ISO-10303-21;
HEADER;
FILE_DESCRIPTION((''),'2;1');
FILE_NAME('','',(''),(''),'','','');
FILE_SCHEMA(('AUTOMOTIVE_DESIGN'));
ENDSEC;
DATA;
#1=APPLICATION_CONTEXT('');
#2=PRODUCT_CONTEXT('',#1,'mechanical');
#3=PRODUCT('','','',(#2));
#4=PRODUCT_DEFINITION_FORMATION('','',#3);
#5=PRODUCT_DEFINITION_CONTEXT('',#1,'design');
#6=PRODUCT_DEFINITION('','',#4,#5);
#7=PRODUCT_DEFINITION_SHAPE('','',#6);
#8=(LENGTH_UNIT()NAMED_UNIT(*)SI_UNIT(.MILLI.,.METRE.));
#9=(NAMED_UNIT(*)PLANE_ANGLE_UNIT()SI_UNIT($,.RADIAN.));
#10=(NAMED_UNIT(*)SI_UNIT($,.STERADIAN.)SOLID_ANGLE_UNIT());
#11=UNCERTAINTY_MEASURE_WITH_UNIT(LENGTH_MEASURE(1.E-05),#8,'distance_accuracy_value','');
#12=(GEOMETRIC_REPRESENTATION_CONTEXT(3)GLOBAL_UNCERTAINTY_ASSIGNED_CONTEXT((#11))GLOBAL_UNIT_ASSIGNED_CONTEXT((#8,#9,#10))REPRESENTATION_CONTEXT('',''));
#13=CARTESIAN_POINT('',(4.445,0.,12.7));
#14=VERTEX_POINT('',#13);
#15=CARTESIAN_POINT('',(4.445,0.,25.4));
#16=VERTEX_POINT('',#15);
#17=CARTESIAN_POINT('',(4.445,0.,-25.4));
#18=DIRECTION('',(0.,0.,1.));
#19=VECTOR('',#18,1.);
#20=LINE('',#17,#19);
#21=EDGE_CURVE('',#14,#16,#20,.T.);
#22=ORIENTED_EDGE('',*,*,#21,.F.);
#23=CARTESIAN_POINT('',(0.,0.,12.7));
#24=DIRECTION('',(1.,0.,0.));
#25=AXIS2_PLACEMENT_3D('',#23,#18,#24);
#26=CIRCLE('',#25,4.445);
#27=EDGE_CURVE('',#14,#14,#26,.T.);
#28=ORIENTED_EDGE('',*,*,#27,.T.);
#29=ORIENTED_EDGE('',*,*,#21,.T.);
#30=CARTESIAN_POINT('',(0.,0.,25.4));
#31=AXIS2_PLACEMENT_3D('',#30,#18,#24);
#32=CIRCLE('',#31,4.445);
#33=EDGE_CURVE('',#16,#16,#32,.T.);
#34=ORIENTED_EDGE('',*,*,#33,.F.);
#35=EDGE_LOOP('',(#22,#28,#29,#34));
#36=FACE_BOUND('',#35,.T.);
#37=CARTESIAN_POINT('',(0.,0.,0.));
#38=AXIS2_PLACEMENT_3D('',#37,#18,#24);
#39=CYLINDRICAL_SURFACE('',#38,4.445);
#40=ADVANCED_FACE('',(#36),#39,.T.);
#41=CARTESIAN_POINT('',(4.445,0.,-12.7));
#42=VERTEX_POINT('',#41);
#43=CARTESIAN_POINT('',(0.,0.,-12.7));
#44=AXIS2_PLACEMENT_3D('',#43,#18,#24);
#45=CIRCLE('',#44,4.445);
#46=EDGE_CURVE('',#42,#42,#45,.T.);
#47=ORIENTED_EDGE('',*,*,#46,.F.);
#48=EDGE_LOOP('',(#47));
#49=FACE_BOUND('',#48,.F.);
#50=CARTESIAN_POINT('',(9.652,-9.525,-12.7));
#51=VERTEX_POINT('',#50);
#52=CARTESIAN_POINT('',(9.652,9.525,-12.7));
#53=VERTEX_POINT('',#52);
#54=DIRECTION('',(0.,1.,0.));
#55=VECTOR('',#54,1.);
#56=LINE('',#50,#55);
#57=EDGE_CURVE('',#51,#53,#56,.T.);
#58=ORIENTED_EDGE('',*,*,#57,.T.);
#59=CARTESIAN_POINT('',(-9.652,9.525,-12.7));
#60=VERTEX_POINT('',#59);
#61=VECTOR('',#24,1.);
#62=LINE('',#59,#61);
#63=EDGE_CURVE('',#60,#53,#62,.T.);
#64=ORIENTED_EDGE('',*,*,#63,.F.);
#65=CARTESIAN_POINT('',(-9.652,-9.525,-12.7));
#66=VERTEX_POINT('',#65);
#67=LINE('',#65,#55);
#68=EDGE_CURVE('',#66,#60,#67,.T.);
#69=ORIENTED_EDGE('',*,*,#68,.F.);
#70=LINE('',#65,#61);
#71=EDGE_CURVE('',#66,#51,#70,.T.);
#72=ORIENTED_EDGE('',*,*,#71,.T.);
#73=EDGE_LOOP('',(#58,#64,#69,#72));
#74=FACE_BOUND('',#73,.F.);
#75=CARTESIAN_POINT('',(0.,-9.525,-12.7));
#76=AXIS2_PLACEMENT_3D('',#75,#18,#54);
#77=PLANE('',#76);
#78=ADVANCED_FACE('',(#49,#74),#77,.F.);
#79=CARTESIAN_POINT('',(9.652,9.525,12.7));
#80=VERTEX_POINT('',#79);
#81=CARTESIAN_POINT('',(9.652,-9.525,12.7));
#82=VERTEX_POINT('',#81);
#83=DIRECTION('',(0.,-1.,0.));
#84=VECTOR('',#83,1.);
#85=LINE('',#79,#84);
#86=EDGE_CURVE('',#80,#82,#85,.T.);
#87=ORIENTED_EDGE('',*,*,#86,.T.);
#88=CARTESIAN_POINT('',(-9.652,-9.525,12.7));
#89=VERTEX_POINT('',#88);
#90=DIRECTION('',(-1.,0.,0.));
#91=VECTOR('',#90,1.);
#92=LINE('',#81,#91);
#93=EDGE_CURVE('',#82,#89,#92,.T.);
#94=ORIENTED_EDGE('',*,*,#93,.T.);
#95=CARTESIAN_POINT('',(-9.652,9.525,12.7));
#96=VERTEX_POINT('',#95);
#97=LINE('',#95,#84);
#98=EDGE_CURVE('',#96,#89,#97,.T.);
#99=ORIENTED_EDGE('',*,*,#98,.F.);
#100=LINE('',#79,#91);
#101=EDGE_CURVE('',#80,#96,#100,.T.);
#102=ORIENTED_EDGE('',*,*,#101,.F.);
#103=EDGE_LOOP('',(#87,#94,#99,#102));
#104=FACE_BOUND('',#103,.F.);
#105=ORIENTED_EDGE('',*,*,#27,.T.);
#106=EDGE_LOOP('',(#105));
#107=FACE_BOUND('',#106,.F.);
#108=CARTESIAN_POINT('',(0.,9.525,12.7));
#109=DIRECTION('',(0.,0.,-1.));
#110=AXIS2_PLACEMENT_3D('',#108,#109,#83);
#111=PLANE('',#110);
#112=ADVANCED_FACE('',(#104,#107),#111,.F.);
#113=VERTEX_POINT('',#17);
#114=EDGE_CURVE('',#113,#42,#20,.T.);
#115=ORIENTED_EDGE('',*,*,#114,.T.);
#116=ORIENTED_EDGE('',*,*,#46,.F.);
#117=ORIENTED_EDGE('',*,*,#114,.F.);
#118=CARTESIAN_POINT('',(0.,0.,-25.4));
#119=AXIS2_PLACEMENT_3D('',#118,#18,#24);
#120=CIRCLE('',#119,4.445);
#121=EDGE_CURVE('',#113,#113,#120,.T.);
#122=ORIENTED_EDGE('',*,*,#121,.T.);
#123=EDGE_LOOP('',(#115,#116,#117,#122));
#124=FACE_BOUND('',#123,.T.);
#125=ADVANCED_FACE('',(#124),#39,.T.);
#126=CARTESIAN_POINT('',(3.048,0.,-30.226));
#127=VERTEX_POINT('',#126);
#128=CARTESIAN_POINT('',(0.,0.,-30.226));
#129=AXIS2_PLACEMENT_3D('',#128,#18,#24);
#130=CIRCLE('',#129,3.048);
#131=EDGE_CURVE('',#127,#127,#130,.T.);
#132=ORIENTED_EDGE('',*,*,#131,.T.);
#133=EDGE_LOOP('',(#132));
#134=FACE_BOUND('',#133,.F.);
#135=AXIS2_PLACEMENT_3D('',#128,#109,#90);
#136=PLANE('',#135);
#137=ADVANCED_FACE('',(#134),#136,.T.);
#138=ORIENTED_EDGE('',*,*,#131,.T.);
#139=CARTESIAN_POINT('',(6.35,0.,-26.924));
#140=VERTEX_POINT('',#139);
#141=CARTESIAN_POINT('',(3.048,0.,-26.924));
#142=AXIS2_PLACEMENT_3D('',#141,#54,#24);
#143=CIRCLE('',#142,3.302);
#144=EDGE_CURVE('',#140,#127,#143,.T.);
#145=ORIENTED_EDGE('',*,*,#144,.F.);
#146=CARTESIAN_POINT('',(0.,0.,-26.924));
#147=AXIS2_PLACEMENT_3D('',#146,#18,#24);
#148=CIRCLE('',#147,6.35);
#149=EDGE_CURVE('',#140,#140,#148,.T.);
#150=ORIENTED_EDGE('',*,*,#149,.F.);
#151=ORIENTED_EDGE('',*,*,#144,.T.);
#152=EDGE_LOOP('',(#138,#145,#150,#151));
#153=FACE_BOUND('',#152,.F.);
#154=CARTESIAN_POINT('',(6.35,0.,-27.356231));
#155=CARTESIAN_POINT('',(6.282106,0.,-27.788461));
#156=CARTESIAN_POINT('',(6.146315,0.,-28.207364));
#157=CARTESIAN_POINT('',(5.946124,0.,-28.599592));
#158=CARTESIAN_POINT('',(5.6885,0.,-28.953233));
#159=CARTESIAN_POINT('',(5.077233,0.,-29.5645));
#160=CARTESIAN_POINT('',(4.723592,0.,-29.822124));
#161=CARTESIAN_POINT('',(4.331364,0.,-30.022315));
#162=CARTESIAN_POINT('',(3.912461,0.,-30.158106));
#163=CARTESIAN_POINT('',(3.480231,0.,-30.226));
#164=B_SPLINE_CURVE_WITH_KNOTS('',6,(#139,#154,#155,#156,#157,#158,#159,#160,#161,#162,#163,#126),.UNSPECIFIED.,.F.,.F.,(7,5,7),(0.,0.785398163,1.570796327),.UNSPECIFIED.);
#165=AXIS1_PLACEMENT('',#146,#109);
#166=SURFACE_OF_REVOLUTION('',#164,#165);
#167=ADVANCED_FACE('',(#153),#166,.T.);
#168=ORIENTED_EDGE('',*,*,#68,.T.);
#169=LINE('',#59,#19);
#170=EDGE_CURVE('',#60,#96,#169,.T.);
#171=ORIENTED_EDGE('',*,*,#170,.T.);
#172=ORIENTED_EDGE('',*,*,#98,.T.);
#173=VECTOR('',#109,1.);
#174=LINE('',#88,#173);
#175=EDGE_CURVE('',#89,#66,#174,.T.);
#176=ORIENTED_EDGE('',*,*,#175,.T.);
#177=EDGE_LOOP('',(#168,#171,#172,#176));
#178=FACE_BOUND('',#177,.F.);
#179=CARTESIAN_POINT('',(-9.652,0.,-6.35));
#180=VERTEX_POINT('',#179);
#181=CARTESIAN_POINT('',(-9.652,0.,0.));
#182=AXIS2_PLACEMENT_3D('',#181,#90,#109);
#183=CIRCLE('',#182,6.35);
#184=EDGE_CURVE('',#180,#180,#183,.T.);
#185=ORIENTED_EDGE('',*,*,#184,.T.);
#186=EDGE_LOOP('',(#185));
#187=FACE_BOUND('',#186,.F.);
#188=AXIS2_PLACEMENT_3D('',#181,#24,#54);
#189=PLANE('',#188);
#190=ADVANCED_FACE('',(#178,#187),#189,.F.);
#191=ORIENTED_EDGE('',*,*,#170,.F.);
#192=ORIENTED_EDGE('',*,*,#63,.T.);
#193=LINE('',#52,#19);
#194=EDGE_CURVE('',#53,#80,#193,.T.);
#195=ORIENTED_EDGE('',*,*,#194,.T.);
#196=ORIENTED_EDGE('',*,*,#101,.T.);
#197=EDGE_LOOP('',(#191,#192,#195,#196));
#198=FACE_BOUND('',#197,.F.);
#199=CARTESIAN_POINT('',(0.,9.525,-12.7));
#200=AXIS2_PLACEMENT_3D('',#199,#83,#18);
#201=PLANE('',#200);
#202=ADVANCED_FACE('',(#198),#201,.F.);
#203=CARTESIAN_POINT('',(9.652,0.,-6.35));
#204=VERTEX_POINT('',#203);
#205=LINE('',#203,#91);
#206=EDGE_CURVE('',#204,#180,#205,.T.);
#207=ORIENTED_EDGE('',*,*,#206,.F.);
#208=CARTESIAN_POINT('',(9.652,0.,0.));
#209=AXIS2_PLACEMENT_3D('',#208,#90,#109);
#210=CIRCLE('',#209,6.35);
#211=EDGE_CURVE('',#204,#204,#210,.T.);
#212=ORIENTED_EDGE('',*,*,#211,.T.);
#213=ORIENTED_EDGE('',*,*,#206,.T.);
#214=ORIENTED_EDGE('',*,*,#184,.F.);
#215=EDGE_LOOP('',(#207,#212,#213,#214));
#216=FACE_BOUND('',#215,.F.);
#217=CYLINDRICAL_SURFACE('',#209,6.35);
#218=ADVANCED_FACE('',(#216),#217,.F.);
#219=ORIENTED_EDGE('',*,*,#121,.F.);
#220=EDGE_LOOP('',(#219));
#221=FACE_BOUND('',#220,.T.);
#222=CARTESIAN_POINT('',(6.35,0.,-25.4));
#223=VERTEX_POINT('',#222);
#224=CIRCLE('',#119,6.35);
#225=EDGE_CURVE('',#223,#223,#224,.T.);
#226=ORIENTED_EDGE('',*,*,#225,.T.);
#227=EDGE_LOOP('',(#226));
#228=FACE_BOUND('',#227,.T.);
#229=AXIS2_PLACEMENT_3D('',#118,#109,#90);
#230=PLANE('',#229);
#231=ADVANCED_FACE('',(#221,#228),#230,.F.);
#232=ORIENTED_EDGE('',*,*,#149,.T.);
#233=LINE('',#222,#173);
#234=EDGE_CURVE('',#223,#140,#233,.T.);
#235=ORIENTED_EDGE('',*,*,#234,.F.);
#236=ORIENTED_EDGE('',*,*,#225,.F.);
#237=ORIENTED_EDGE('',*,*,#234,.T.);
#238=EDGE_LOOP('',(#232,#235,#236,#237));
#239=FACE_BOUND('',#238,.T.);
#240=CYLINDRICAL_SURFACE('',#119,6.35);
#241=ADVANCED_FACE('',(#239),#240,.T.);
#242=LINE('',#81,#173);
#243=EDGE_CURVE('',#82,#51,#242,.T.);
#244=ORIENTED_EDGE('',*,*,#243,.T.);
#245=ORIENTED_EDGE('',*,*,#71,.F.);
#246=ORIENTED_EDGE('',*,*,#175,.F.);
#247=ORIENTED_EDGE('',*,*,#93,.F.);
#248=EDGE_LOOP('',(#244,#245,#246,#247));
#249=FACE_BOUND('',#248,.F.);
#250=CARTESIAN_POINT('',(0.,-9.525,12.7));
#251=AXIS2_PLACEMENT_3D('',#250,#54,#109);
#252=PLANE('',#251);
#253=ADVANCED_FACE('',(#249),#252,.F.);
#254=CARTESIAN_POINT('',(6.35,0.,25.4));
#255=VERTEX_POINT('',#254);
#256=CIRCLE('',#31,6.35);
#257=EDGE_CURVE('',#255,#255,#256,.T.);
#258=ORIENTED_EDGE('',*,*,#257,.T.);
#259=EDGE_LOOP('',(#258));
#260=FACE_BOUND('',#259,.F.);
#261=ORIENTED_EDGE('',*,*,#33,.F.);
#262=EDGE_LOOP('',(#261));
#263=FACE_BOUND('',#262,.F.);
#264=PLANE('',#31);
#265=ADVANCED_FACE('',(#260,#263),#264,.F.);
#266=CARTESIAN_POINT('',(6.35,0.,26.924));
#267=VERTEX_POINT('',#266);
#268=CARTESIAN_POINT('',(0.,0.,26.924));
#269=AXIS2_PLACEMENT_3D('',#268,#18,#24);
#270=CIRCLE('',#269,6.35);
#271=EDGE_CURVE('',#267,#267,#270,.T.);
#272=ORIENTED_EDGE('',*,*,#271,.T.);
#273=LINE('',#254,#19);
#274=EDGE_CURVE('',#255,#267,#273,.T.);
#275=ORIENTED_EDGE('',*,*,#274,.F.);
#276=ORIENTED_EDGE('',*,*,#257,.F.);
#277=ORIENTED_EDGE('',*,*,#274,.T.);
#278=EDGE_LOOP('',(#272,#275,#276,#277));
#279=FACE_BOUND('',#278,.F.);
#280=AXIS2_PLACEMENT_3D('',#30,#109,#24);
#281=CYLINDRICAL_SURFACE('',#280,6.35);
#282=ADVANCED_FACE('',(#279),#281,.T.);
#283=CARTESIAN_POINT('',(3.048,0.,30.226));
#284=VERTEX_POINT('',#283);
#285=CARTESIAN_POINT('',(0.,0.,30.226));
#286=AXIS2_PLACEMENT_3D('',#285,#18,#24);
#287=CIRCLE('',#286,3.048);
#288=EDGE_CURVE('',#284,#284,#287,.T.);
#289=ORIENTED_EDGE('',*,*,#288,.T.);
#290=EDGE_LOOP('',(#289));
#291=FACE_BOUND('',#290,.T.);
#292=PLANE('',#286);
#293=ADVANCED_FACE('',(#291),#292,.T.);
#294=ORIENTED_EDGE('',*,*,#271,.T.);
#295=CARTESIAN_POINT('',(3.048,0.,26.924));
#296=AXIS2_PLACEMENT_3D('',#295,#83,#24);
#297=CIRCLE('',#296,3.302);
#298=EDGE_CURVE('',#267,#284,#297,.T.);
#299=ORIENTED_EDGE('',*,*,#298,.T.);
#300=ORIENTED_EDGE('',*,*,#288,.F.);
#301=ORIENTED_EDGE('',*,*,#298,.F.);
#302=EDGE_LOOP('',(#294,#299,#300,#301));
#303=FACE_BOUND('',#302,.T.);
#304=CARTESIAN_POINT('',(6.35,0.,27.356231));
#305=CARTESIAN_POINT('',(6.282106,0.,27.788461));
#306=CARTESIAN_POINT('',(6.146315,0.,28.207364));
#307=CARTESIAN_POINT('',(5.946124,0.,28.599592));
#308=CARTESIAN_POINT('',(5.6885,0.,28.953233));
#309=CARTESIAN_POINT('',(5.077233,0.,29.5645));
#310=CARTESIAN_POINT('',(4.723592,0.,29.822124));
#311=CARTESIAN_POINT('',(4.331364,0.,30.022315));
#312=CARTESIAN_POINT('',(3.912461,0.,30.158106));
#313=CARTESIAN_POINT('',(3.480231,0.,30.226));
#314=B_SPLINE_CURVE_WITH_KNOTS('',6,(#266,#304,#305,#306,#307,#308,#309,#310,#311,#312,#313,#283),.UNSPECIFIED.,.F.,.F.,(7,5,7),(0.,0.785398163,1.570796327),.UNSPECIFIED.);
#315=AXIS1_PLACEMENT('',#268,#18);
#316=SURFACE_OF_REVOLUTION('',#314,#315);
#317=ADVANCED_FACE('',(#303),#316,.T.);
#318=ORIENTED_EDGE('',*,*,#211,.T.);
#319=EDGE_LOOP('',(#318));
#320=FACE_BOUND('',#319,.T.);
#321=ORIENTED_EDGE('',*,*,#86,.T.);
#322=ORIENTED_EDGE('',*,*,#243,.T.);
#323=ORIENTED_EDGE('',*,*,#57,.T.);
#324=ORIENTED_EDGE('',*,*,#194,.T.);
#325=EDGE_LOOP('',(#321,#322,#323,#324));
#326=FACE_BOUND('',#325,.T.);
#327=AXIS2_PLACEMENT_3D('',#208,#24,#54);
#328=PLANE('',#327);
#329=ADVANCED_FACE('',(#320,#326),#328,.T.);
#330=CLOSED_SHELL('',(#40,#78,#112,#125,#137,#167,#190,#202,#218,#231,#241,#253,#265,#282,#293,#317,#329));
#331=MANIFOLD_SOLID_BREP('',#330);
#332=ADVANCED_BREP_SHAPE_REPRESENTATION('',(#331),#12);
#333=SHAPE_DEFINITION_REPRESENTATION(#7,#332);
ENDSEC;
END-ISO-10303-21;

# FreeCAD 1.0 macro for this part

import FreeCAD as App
import Part
import Sketcher
from FreeCAD import Vector
Q = App.Units.Quantity


def edges_at(feature, points):
    """Names of the edges that pass closest to the given points."""
    edges = feature.Shape.Edges
    near = lambda p: min(range(len(edges)), key=lambda i: edges[i].distToShape(Part.Vertex(*p))[0])
    return sorted({f"Edge{near(p) + 1}" for p in points})

doc = App.newDocument("Part")
body = doc.addObject("PartDesign::Body", "Body")

# Sketch on XY plane
sketch1 = doc.addObject("Sketcher::SketchObject", "Sketch")
body.addObject(sketch1)
sketch1.AttachmentSupport = (doc.XY_Plane, [""])
sketch1.MapMode = "FlatFace"
sketch1.addGeometry(Part.Circle(Vector(0, 0, 0), Vector(0, 0, 1), 4.4), False)
sketch1.addConstraint([
    Sketcher.Constraint("Coincident", 0, 3, -1, 1),
    Sketcher.Constraint("Diameter", 0, Q("0.35 in")),
])
pad1 = doc.addObject("PartDesign::Pad", "Pad")
body.addObject(pad1)
pad1.Profile = sketch1
pad1.Length = Q("2 in")
pad1.Midplane = True

# Sketch on XY plane
sketch2 = doc.addObject("Sketcher::SketchObject", "Sketch001")
body.addObject(sketch2)
sketch2.AttachmentSupport = (doc.XY_Plane, [""])
sketch2.MapMode = "FlatFace"
sketch2.AttachmentOffset = App.Placement(Vector(0, 0, 1 * 25.4), App.Rotation())
sketch2.addGeometry(Part.Circle(Vector(0, 0, 0), Vector(0, 0, 1), 6), False)
sketch2.addConstraint([
    Sketcher.Constraint("Coincident", 0, 3, -1, 1),
    Sketcher.Constraint("Diameter", 0, Q("0.5 in")),
])
pad2 = doc.addObject("PartDesign::Pad", "Pad001")
body.addObject(pad2)
pad2.Profile = sketch2
pad2.Length = Q("0.19 in")
doc.recompute()

fillet = doc.addObject("PartDesign::Fillet", "Fillet")
body.addObject(fillet)
fillet.Base = (pad2, edges_at(pad2, [(-6.35, 0, 30.226)]))
fillet.Radius = Q("0.13 in")
doc.recompute()

mirrored = doc.addObject("PartDesign::Mirrored", "Mirrored")
body.addObject(mirrored)
mirrored.Originals = [pad2, fillet]
mirrored.MirrorPlane = (doc.XY_Plane, [""])
body.Tip = mirrored

# Sketch on YZ plane
sketch3 = doc.addObject("Sketcher::SketchObject", "Sketch002")
body.addObject(sketch3)
sketch3.AttachmentSupport = (doc.YZ_Plane, [""])
sketch3.MapMode = "FlatFace"
sketch3.addGeometry([
    Part.LineSegment(Vector(-10, 13, 0), Vector(-10, -13, 0)),
    Part.LineSegment(Vector(-10, -13, 0), Vector(10, -13, 0)),
    Part.LineSegment(Vector(10, -13, 0), Vector(10, 13, 0)),
    Part.LineSegment(Vector(10, 13, 0), Vector(-10, 13, 0)),
], False)
sketch3.addConstraint([
    Sketcher.Constraint("Coincident", 0, 2, 1, 1),
    Sketcher.Constraint("Coincident", 1, 2, 2, 1),
    Sketcher.Constraint("Coincident", 2, 2, 3, 1),
    Sketcher.Constraint("Coincident", 3, 2, 0, 1),
    Sketcher.Constraint("Vertical", 0),
    Sketcher.Constraint("Horizontal", 1),
    Sketcher.Constraint("Vertical", 2),
    Sketcher.Constraint("Horizontal", 3),
    Sketcher.Constraint("Symmetric", 0, 2, 2, 2, -1, 1),
    Sketcher.Constraint("DistanceY", 0, 2, 0, 1, Q("1 in")),
    Sketcher.Constraint("DistanceX", 1, 1, 1, 2, Q("0.75 in")),
])
pad3 = doc.addObject("PartDesign::Pad", "Pad002")
body.addObject(pad3)
pad3.Profile = sketch3
pad3.Length = Q("0.76 in")
pad3.Midplane = True

# Sketch on YZ plane
sketch4 = doc.addObject("Sketcher::SketchObject", "Sketch003")
body.addObject(sketch4)
sketch4.AttachmentSupport = (doc.YZ_Plane, [""])
sketch4.MapMode = "FlatFace"
sketch4.AttachmentOffset = App.Placement(Vector(0, 0, 0.38 * 25.4), App.Rotation())
sketch4.addGeometry(Part.Circle(Vector(0, 0, 0), Vector(0, 0, 1), 6), False)
sketch4.addConstraint([
    Sketcher.Constraint("Coincident", 0, 3, -1, 1),
    Sketcher.Constraint("Diameter", 0, Q("0.5 in")),
])
doc.recompute()
hole = doc.addObject("PartDesign::Hole", "Hole")
body.addObject(hole)
hole.Profile = sketch4
hole.ThreadType = "None"
hole.Diameter = Q("0.5 in")
hole.DepthType = "ThroughAll"

doc.recompute()
